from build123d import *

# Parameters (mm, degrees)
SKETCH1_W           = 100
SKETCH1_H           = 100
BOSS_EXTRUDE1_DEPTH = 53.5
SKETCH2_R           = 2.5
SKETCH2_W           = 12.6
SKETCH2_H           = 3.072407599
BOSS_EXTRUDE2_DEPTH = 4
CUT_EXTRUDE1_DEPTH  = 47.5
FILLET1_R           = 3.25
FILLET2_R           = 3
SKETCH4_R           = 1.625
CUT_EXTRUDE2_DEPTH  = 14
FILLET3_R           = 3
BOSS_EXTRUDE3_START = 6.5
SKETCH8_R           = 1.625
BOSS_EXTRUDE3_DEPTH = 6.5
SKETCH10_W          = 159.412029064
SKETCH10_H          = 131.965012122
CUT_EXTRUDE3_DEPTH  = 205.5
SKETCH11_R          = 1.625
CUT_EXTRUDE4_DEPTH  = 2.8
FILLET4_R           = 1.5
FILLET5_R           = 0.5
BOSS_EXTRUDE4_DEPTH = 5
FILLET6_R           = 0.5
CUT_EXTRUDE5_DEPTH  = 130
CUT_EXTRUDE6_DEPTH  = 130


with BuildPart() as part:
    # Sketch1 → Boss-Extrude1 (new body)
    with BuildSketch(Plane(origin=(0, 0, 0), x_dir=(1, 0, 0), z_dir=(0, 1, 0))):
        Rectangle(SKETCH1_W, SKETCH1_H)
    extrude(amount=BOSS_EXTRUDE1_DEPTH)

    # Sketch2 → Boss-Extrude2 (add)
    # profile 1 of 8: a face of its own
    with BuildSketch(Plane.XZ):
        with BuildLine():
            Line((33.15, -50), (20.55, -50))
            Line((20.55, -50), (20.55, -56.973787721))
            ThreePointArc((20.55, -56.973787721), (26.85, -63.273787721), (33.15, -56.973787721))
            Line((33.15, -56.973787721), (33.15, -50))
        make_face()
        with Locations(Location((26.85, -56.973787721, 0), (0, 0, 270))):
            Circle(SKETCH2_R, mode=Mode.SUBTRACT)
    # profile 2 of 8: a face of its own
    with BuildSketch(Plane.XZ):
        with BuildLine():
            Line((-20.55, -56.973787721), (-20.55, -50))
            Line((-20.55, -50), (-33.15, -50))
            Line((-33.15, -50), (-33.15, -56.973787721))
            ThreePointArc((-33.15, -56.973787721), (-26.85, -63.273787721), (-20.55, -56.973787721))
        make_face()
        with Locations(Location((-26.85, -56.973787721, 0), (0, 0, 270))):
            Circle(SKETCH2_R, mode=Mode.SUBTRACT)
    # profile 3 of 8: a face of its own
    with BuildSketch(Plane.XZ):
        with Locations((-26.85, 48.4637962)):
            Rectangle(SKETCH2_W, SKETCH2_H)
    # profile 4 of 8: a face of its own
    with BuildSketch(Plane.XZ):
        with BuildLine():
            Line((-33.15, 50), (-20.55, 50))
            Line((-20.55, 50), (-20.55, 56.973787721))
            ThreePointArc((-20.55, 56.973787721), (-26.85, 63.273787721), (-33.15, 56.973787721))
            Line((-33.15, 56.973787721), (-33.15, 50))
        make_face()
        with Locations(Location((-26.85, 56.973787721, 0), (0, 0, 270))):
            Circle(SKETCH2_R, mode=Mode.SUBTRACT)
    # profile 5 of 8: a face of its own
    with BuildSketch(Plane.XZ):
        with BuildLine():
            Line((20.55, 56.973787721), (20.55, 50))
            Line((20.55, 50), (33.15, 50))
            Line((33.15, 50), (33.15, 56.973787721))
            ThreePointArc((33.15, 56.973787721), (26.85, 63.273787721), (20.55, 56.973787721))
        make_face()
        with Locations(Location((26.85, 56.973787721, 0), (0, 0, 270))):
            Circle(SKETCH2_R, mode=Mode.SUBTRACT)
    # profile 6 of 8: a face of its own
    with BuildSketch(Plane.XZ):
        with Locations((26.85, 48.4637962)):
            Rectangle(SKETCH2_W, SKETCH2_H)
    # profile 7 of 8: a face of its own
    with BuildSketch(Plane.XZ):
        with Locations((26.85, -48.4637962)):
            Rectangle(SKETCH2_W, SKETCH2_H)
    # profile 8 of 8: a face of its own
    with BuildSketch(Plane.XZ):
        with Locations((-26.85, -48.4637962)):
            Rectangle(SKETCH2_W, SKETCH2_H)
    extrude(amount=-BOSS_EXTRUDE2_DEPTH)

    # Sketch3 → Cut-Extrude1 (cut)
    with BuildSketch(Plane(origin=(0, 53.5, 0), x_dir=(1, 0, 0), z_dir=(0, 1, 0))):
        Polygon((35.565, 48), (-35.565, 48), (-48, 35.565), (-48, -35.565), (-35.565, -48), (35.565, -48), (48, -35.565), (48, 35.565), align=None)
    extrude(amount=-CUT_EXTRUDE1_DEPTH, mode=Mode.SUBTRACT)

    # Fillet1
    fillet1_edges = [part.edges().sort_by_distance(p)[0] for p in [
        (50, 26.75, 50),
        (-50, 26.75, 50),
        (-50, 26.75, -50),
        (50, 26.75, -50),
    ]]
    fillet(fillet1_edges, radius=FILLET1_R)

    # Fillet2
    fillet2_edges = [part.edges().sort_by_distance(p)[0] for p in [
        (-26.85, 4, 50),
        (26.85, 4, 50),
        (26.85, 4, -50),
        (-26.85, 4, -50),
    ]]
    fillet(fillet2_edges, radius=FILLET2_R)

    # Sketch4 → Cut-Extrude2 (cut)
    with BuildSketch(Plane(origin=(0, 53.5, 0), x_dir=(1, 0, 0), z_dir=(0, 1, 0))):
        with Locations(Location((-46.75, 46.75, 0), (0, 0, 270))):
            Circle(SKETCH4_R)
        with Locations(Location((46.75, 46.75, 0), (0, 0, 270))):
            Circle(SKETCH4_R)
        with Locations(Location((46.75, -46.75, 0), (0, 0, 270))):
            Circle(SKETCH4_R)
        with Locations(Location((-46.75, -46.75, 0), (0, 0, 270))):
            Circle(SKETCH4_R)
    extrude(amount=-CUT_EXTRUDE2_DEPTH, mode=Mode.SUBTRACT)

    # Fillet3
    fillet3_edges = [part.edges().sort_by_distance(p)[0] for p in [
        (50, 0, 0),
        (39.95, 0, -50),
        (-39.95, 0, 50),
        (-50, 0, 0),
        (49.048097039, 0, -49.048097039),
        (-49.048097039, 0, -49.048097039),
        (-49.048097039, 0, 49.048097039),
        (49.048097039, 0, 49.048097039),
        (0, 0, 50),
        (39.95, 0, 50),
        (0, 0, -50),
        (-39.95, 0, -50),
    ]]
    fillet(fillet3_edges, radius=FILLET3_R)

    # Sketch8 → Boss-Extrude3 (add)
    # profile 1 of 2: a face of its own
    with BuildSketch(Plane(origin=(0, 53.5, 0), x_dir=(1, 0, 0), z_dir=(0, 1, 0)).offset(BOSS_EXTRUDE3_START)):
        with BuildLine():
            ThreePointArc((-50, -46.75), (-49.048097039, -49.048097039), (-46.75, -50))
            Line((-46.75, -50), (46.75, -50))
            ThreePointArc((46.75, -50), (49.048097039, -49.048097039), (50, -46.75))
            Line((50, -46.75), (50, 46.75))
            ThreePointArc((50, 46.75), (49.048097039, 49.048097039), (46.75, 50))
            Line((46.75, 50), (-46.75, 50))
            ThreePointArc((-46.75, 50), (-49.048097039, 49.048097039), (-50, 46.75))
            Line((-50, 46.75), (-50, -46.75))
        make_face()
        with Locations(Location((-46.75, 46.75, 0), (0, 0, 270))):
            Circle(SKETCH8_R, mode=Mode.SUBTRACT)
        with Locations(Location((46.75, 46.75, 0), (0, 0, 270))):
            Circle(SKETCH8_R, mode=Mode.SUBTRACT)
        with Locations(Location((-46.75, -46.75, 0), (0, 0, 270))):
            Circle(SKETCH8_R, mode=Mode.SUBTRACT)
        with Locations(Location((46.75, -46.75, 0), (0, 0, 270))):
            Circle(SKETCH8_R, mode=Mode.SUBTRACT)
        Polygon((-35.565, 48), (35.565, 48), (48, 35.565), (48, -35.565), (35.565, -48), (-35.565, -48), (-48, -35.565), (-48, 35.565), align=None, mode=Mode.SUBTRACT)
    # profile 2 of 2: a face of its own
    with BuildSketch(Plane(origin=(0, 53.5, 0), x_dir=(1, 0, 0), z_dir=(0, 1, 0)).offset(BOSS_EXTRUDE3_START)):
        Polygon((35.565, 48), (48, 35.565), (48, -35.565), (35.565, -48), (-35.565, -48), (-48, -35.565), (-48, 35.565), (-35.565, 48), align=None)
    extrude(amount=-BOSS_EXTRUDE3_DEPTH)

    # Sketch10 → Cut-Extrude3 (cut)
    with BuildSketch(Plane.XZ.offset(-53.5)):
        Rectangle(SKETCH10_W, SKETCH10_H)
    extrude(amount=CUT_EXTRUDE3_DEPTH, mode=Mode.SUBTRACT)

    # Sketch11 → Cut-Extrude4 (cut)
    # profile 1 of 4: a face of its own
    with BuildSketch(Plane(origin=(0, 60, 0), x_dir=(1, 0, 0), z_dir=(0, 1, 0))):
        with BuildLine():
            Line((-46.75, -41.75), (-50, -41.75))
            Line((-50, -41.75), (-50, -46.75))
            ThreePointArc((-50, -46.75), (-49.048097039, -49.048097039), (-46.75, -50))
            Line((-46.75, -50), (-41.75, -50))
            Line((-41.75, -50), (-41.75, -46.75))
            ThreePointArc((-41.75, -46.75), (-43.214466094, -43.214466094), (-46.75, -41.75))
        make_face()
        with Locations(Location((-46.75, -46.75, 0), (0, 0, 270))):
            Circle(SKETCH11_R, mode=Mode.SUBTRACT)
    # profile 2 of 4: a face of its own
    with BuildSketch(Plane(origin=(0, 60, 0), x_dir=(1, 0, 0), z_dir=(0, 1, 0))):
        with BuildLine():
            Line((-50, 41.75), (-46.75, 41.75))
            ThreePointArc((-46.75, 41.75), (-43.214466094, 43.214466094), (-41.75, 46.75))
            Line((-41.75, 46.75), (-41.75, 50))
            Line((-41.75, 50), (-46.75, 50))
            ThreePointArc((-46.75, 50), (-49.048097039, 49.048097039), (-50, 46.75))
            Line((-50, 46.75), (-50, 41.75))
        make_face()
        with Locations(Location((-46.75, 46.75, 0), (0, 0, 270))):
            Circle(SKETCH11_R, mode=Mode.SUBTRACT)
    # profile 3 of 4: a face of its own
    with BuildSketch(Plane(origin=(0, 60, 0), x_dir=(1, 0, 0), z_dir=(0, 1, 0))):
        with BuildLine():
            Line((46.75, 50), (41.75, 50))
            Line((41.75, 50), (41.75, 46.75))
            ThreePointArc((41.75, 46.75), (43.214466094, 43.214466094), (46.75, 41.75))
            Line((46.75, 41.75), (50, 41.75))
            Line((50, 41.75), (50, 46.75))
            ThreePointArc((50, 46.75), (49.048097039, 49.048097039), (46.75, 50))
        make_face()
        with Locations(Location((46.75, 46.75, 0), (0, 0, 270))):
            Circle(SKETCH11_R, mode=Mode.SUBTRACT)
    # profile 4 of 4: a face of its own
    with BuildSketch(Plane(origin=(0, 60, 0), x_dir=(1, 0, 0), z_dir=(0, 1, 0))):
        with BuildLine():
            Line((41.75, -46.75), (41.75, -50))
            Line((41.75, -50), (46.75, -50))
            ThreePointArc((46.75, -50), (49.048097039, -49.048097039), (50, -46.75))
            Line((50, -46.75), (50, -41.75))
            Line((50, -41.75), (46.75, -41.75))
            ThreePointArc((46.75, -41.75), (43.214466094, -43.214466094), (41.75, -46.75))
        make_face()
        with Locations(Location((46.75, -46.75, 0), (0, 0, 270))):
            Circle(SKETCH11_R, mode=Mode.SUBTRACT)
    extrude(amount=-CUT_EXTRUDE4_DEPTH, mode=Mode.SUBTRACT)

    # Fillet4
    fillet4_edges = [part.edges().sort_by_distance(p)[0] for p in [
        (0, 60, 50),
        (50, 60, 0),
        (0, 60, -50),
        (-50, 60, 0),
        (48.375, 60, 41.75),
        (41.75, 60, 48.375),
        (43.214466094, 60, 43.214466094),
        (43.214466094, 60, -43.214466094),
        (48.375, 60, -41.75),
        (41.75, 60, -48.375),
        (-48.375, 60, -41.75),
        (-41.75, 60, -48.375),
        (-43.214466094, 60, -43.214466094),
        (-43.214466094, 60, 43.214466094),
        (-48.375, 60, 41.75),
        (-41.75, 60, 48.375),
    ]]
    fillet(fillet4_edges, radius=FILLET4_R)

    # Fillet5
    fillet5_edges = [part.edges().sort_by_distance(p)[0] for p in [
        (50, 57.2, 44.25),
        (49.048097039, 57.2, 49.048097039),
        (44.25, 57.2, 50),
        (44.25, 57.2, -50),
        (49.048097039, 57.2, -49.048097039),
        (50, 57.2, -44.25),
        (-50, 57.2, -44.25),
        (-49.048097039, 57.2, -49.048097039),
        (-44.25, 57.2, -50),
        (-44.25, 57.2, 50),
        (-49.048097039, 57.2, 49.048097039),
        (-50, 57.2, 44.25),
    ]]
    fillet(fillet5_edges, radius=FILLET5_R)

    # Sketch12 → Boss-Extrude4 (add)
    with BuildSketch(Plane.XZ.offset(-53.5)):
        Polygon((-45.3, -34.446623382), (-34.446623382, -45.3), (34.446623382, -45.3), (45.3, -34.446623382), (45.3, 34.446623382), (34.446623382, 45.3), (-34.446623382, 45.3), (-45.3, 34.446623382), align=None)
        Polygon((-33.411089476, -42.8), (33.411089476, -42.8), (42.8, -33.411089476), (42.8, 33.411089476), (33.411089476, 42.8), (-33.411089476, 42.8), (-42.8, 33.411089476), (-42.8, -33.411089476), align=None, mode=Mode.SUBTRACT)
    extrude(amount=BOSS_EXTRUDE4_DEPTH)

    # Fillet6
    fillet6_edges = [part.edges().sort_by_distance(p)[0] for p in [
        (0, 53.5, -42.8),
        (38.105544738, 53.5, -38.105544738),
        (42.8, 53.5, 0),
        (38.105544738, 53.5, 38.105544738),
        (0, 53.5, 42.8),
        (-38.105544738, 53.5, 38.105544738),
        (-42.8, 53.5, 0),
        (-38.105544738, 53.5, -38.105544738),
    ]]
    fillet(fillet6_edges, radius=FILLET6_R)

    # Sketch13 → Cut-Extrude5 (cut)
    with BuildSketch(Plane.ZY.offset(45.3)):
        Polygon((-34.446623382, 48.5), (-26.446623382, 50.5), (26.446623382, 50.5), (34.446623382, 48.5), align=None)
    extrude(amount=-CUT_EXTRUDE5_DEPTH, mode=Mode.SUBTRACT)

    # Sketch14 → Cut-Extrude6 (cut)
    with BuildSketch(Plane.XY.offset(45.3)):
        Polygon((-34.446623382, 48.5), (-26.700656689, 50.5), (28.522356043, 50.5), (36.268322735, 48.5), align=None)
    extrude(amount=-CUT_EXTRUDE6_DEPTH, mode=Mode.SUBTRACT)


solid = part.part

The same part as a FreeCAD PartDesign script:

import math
import FreeCAD as App
import Part
import Sketcher

V = App.Vector


def edges_at(feature, points):
    """Names of the edges that pass closest to the given points."""
    edges = feature.Shape.Edges
    near = lambda p: min(range(len(edges)), key=lambda i: edges[i].distToShape(Part.Vertex(*p))[0])
    return sorted({f"Edge{near(p) + 1}" for p in points})


def add_polygon(sketch, points):
    """Adds a closed chain of lines whose ends are joined by coincident constraints."""
    first, n = sketch.GeometryCount, len(points)
    for a, b in zip(points, points[1:] + points[:1]):
        sketch.addGeometry(Part.LineSegment(App.Vector(*a, 0), App.Vector(*b, 0)), False)
    for i in range(n):
        sketch.addConstraint(Sketcher.Constraint("Coincident", first + i, 2, first + (i + 1) % n, 1))

doc = App.newDocument("Part")
body = doc.addObject("PartDesign::Body", "Body")

sketch1 = body.newObject("Sketcher::SketchObject", "Sketch")
sketch1.AttachmentSupport = (doc.getObject("XZ_Plane"), [""])
sketch1.MapMode = "FlatFace"
add_polygon(sketch1, [(-50, -50), (-50, 50), (50, 50), (50, -50)])
sketch1.addConstraint([
    Sketcher.Constraint("Vertical", 0),
    Sketcher.Constraint("Horizontal", 1),
    Sketcher.Constraint("Vertical", 2),
    Sketcher.Constraint("Horizontal", 3),
    Sketcher.Constraint("Symmetric", 0, 2, 2, 2, -1, 1),
    Sketcher.Constraint("Equal", 3, 0),
    Sketcher.Constraint("DistanceX", 1, 1, 1, 2, 100.0),
])
pad1 = body.newObject("PartDesign::Pad", "Pad")
pad1.Profile = sketch1
pad1.Length = 53.5
pad1.Reversed = True

sketch2 = body.newObject("Sketcher::SketchObject", "Sketch001")
sketch2.AttachmentSupport = (doc.getObject("XZ_Plane"), [""])
sketch2.MapMode = "FlatFace"
sketch2.addGeometry([
    Part.LineSegment(V(33.1, -57, 0), V(33.1, -46.9, 0)),
    Part.LineSegment(V(33.1, -46.9, 0), V(20.6, -46.9, 0)),
    Part.LineSegment(V(20.6, -46.9, 0), V(20.6, -57, 0)),
    Part.ArcOfCircle(Part.Circle(V(26.9, -57, 0), V(0, 0, 1), 6.3), math.radians(180), math.radians(360)),
    Part.Circle(V(26.9, -57, 0), V(0, 0, 1), 2.5),
    Part.LineSegment(V(-20.6, -57, 0), V(-20.6, -46.9, 0)),
    Part.LineSegment(V(-20.6, -46.9, 0), V(-33.1, -46.9, 0)),
    Part.LineSegment(V(-33.1, -46.9, 0), V(-33.1, -57, 0)),
    Part.ArcOfCircle(Part.Circle(V(-26.9, -57, 0), V(0, 0, 1), 6.3), math.radians(180), math.radians(360)),
    Part.Circle(V(-26.9, -57, 0), V(0, 0, 1), 2.5),
    Part.LineSegment(V(-33.1, 46.9, 0), V(-20.6, 46.9, 0)),
    Part.LineSegment(V(-20.6, 46.9, 0), V(-20.6, 57, 0)),
    Part.ArcOfCircle(Part.Circle(V(-26.9, 57, 0), V(0, 0, 1), 6.3), math.radians(0), math.radians(180)),
    Part.LineSegment(V(-33.1, 57, 0), V(-33.1, 46.9, 0)),
    Part.Circle(V(-26.9, 57, 0), V(0, 0, 1), 2.5),
    Part.LineSegment(V(20.6, 57, 0), V(20.6, 46.9, 0)),
    Part.LineSegment(V(20.6, 46.9, 0), V(33.1, 46.9, 0)),
    Part.LineSegment(V(33.1, 46.9, 0), V(33.1, 57, 0)),
    Part.ArcOfCircle(Part.Circle(V(26.9, 57, 0), V(0, 0, 1), 6.3), math.radians(0), math.radians(180)),
    Part.Circle(V(26.9, 57, 0), V(0, 0, 1), 2.5),
], False)
sketch2.addConstraint([
    Sketcher.Constraint("Coincident", 0, 2, 1, 1),
    Sketcher.Constraint("Coincident", 1, 2, 2, 1),
    Sketcher.Constraint("Tangent", 2, 2, 3, 1),
    Sketcher.Constraint("Tangent", 3, 2, 0, 1),
    Sketcher.Constraint("Coincident", 5, 2, 6, 1),
    Sketcher.Constraint("Coincident", 6, 2, 7, 1),
    Sketcher.Constraint("Tangent", 7, 2, 8, 1),
    Sketcher.Constraint("Tangent", 8, 2, 5, 1),
    Sketcher.Constraint("Coincident", 10, 2, 11, 1),
    Sketcher.Constraint("Tangent", 11, 2, 12, 1),
    Sketcher.Constraint("Tangent", 12, 2, 13, 1),
    Sketcher.Constraint("Coincident", 13, 2, 10, 1),
    Sketcher.Constraint("Coincident", 15, 2, 16, 1),
    Sketcher.Constraint("Coincident", 16, 2, 17, 1),
    Sketcher.Constraint("Tangent", 17, 2, 18, 1),
    Sketcher.Constraint("Tangent", 18, 2, 15, 1),
    Sketcher.Constraint("Vertical", 0),
    Sketcher.Constraint("Horizontal", 1),
    Sketcher.Constraint("Vertical", 2),
    Sketcher.Constraint("Vertical", 5),
    Sketcher.Constraint("Horizontal", 6),
    Sketcher.Constraint("Vertical", 7),
    Sketcher.Constraint("Horizontal", 10),
    Sketcher.Constraint("Vertical", 11),
    Sketcher.Constraint("Vertical", 13),
    Sketcher.Constraint("Vertical", 15),
    Sketcher.Constraint("Horizontal", 16),
    Sketcher.Constraint("Vertical", 17),
    Sketcher.Constraint("Coincident", 4, 3, 3, 3),
    Sketcher.Constraint("Coincident", 9, 3, 8, 3),
    Sketcher.Constraint("Coincident", 14, 3, 12, 3),
    Sketcher.Constraint("Coincident", 19, 3, 18, 3),
    Sketcher.Constraint("Equal", 3, 8),
    Sketcher.Constraint("Equal", 4, 9),
    Sketcher.Constraint("Equal", 8, 12),
    Sketcher.Constraint("Equal", 9, 14),
    Sketcher.Constraint("Equal", 12, 18),
    Sketcher.Constraint("Equal", 14, 19),
    Sketcher.Constraint("Symmetric", 3, 3, 12, 3, -1, 1),
    Sketcher.Constraint("Symmetric", 8, 3, 18, 3, -1, 1),
    Sketcher.Constraint("Symmetric", 3, 3, 8, 3, -2),
    Sketcher.Constraint("Horizontal", 1, 2, 5, 2),
    Sketcher.Constraint("Horizontal", 13, 2, 15, 2),
    Sketcher.Constraint("Equal", 7, 11),
    Sketcher.Constraint("Diameter", 4, 5.0),
    Sketcher.Constraint("Radius", 3, 6.3),
    Sketcher.Constraint("DistanceX", 8, 3, 0, 2, 60.0),
    Sketcher.Constraint("DistanceY", 0, 1, 0, 2, 10.046195),
    Sketcher.Constraint("DistanceY", 0, 2, 18, 3, 103.90138),
])
pad2 = body.newObject("PartDesign::Pad", "Pad001")
pad2.Profile = sketch2
pad2.Length = 4
pad2.Reversed = True

sketch3 = body.newObject("Sketcher::SketchObject", "Sketch002")
sketch3.AttachmentSupport = (doc.getObject("XZ_Plane"), [""])
sketch3.MapMode = "FlatFace"
sketch3.AttachmentOffset = App.Placement(V(0, 0, -53.5), App.Rotation())
add_polygon(sketch3, [(36, -48), (-36, -48), (-48, -36), (-48, 36), (-36, 48), (36, 48), (48, 36), (48, -36)])
sketch3.addConstraint([
    Sketcher.Constraint("Horizontal", 0),
    Sketcher.Constraint("Vertical", 2),
    Sketcher.Constraint("Horizontal", 4),
    Sketcher.Constraint("Vertical", 6),
    Sketcher.Constraint("Symmetric", 0, 2, 4, 2, -1, 1),
    Sketcher.Constraint("Symmetric", 1, 2, 5, 2, -1, 1),
    Sketcher.Constraint("Perpendicular", 1, 3),
    Sketcher.Constraint("Perpendicular", 5, 7),
    Sketcher.Constraint("Horizontal", 2, 2, 5, 2),
    Sketcher.Constraint("Horizontal", 1, 2, 6, 2),
    Sketcher.Constraint("Vertical", 0, 2, 3, 2),
    Sketcher.Constraint("Equal", 4, 2),
    Sketcher.Constraint("DistanceY", 0, 2, -1, 1, 48.0),
    Sketcher.Constraint("DistanceX", 0, 2, 0, 1, 71.13),
])
pocket1 = body.newObject("PartDesign::Pocket", "Pocket")
pocket1.Profile = sketch3
pocket1.Length = 47.5
pocket1.Reversed = True
doc.recompute()

fillet = body.newObject("PartDesign::Fillet", "Fillet")
fillet.Base = (pocket1, edges_at(pocket1, [
    (50, 26.75, 50),
    (-50, 26.75, 50),
    (-50, 26.75, -50),
    (50, 26.75, -50),
]))
fillet.Radius = 3.25
doc.recompute()

fillet2 = body.newObject("PartDesign::Fillet", "Fillet001")
fillet2.Base = (fillet, edges_at(fillet, [
    (-26.85, 4, 50),
    (26.85, 4, 50),
    (26.85, 4, -50),
    (-26.85, 4, -50),
]))
fillet2.Radius = 3

sketch4 = body.newObject("Sketcher::SketchObject", "Sketch003")
sketch4.AttachmentSupport = (doc.getObject("XZ_Plane"), [""])
sketch4.MapMode = "FlatFace"
sketch4.AttachmentOffset = App.Placement(V(0, 0, -53.5), App.Rotation())
sketch4.addGeometry([
    Part.Circle(V(-46.8, -46.8, 0), V(0, 0, 1), 1.6),
    Part.Circle(V(46.8, -46.8, 0), V(0, 0, 1), 1.6),
    Part.Circle(V(46.8, 46.8, 0), V(0, 0, 1), 1.6),
    Part.Circle(V(-46.8, 46.8, 0), V(0, 0, 1), 1.6),
], False)
sketch4.addConstraint([
    Sketcher.Constraint("Equal", 0, 1),
    Sketcher.Constraint("Equal", 1, 2),
    Sketcher.Constraint("Equal", 2, 3),
    Sketcher.Constraint("Symmetric", 0, 3, 2, 3, -1, 1),
    Sketcher.Constraint("Symmetric", 1, 3, 3, 3, -1, 1),
    Sketcher.Constraint("Symmetric", 0, 3, 1, 3, -2),
    Sketcher.Constraint("Diameter", 0, 3.25),
    Sketcher.Constraint("DistanceX", 0, 3, 1, 3, 93.5),
    Sketcher.Constraint("DistanceY", 1, 3, 2, 3, 93.5),
])
pocket2 = body.newObject("PartDesign::Pocket", "Pocket001")
pocket2.Profile = sketch4
pocket2.Length = 14
pocket2.Reversed = True
doc.recompute()

fillet3 = body.newObject("PartDesign::Fillet", "Fillet002")
fillet3.Base = (pocket2, edges_at(pocket2, [
    (50, 0, 0),
    (39.95, 0, -50),
    (-39.95, 0, 50),
    (-50, 0, 0),
    (49.048, 0, -49.048),
    (-49.048, 0, -49.048),
    (-49.048, 0, 49.048),
    (49.048, 0, 49.048),
    (0, 0, 50),
    (39.95, 0, 50),
    (0, 0, -50),
    (-39.95, 0, -50),
]))
fillet3.Radius = 3

sketch5 = body.newObject("Sketcher::SketchObject", "Sketch004")
sketch5.AttachmentSupport = (doc.getObject("XZ_Plane"), [""])
sketch5.MapMode = "FlatFace"
sketch5.AttachmentOffset = App.Placement(V(0, 0, -60), App.Rotation())
sketch5.addGeometry([
    Part.ArcOfCircle(Part.Circle(V(-46.8, 46.8, 0), V(0, 0, 1), 3.2), math.radians(90), math.radians(180)),
    Part.LineSegment(V(-46.8, 50, 0), V(46.8, 50, 0)),
    Part.ArcOfCircle(Part.Circle(V(46.8, 46.8, 0), V(0, 0, 1), 3.2), math.radians(0), math.radians(90)),
    Part.LineSegment(V(50, 46.8, 0), V(50, -46.8, 0)),
    Part.ArcOfCircle(Part.Circle(V(46.8, -46.8, 0), V(0, 0, 1), 3.2), math.radians(-90), math.radians(0)),
    Part.LineSegment(V(46.8, -50, 0), V(-46.8, -50, 0)),
    Part.ArcOfCircle(Part.Circle(V(-46.8, -46.8, 0), V(0, 0, 1), 3.2), math.radians(180), math.radians(270)),
    Part.LineSegment(V(-50, -46.8, 0), V(-50, 46.8, 0)),
    Part.Circle(V(-46.8, 46.8, 0), V(0, 0, 1), 1.6),
    Part.Circle(V(46.8, 46.8, 0), V(0, 0, 1), 1.6),
    Part.Circle(V(-46.8, -46.8, 0), V(0, 0, 1), 1.6),
    Part.Circle(V(46.8, -46.8, 0), V(0, 0, 1), 1.6),
], False)
sketch5.addConstraint([
    Sketcher.Constraint("Tangent", 0, 1, 1, 1),
    Sketcher.Constraint("Tangent", 1, 2, 2, 2),
    Sketcher.Constraint("Tangent", 2, 1, 3, 1),
    Sketcher.Constraint("Tangent", 3, 2, 4, 2),
    Sketcher.Constraint("Tangent", 4, 1, 5, 1),
    Sketcher.Constraint("Tangent", 5, 2, 6, 2),
    Sketcher.Constraint("Tangent", 6, 1, 7, 1),
    Sketcher.Constraint("Tangent", 7, 2, 0, 2),
    Sketcher.Constraint("Horizontal", 1),
    Sketcher.Constraint("Vertical", 3),
    Sketcher.Constraint("Horizontal", 5),
    Sketcher.Constraint("Vertical", 7),
    Sketcher.Constraint("Coincident", 8, 3, 0, 3),
    Sketcher.Constraint("Coincident", 9, 3, 2, 3),
    Sketcher.Constraint("Coincident", 10, 3, 6, 3),
    Sketcher.Constraint("Coincident", 11, 3, 4, 3),
    Sketcher.Constraint("Equal", 0, 2),
    Sketcher.Constraint("Equal", 2, 4),
    Sketcher.Constraint("Equal", 4, 6),
    Sketcher.Constraint("Equal", 8, 9),
    Sketcher.Constraint("Equal", 9, 10),
    Sketcher.Constraint("Equal", 10, 11),
    Sketcher.Constraint("Symmetric", 0, 3, 4, 3, -1, 1),
    Sketcher.Constraint("Equal", 5, 3),
    Sketcher.Constraint("Diameter", 8, 3.25),
    Sketcher.Constraint("Radius", 0, 3.25),
    Sketcher.Constraint("DistanceX", 1, 1, 1, 2, 93.5),
])
pad3 = body.newObject("PartDesign::Pad", "Pad002")
pad3.Profile = sketch5
pad3.Length = 6.5

sketch6 = body.newObject("Sketcher::SketchObject", "Sketch005")
sketch6.AttachmentSupport = (doc.getObject("XZ_Plane"), [""])
sketch6.MapMode = "FlatFace"
sketch6.AttachmentOffset = App.Placement(V(0, 0, -53.5), App.Rotation())
add_polygon(sketch6, [(-80, 66), (-80, -66), (80, -66), (80, 66)])
sketch6.addConstraint([
    Sketcher.Constraint("Vertical", 0),
    Sketcher.Constraint("Horizontal", 1),
    Sketcher.Constraint("Vertical", 2),
    Sketcher.Constraint("Horizontal", 3),
    Sketcher.Constraint("Symmetric", 0, 2, 2, 2, -1, 1),
    Sketcher.Constraint("DistanceX", 1, 1, 1, 2, 159.412029),
    Sketcher.Constraint("DistanceY", 0, 2, 0, 1, 131.965012),
])
pocket3 = body.newObject("PartDesign::Pocket", "Pocket002")
pocket3.Profile = sketch6
pocket3.Length = 205.5
pocket3.Reversed = True

sketch7 = body.newObject("Sketcher::SketchObject", "Sketch006")
sketch7.AttachmentSupport = (doc.getObject("XZ_Plane"), [""])
sketch7.MapMode = "FlatFace"
sketch7.AttachmentOffset = App.Placement(V(0, 0, -60), App.Rotation())
sketch7.addGeometry([
    Part.LineSegment(V(-46.8, 41.8, 0), V(-50, 41.8, 0)),
    Part.LineSegment(V(-50, 41.8, 0), V(-50, 46.8, 0)),
    Part.ArcOfCircle(Part.Circle(V(-46.8, 46.8, 0), V(0, 0, 1), 3.2), math.radians(90), math.radians(180)),
    Part.LineSegment(V(-46.8, 50, 0), V(-41.8, 50, 0)),
    Part.LineSegment(V(-41.8, 50, 0), V(-41.8, 46.8, 0)),
    Part.ArcOfCircle(Part.Circle(V(-46.8, 46.8, 0), V(0, 0, 1), 5), math.radians(-90), math.radians(0)),
    Part.Circle(V(-46.8, 46.8, 0), V(0, 0, 1), 1.6),
    Part.LineSegment(V(-50, -41.8, 0), V(-46.8, -41.8, 0)),
    Part.ArcOfCircle(Part.Circle(V(-46.8, -46.8, 0), V(0, 0, 1), 5), math.radians(0), math.radians(90)),
    Part.LineSegment(V(-41.8, -46.8, 0), V(-41.8, -50, 0)),
    Part.LineSegment(V(-41.8, -50, 0), V(-46.8, -50, 0)),
    Part.ArcOfCircle(Part.Circle(V(-46.8, -46.8, 0), V(0, 0, 1), 3.2), math.radians(180), math.radians(270)),
    Part.LineSegment(V(-50, -46.8, 0), V(-50, -41.8, 0)),
    Part.Circle(V(-46.8, -46.8, 0), V(0, 0, 1), 1.6),
    Part.LineSegment(V(46.8, -50, 0), V(41.8, -50, 0)),
    Part.LineSegment(V(41.8, -50, 0), V(41.8, -46.8, 0)),
    Part.ArcOfCircle(Part.Circle(V(46.8, -46.8, 0), V(0, 0, 1), 5), math.radians(90), math.radians(180)),
    Part.LineSegment(V(46.8, -41.8, 0), V(50, -41.8, 0)),
    Part.LineSegment(V(50, -41.8, 0), V(50, -46.8, 0)),
    Part.ArcOfCircle(Part.Circle(V(46.8, -46.8, 0), V(0, 0, 1), 3.2), math.radians(-90), math.radians(0)),
    Part.Circle(V(46.8, -46.8, 0), V(0, 0, 1), 1.6),
    Part.LineSegment(V(41.8, 46.8, 0), V(41.8, 50, 0)),
    Part.LineSegment(V(41.8, 50, 0), V(46.8, 50, 0)),
    Part.ArcOfCircle(Part.Circle(V(46.8, 46.8, 0), V(0, 0, 1), 3.2), math.radians(0), math.radians(90)),
    Part.LineSegment(V(50, 46.8, 0), V(50, 41.8, 0)),
    Part.LineSegment(V(50, 41.8, 0), V(46.8, 41.8, 0)),
    Part.ArcOfCircle(Part.Circle(V(46.8, 46.8, 0), V(0, 0, 1), 5), math.radians(180), math.radians(270)),
    Part.Circle(V(46.8, 46.8, 0), V(0, 0, 1), 1.6),
], False)
sketch7.addConstraint([
    Sketcher.Constraint("Coincident", 0, 2, 1, 1),
    Sketcher.Constraint("Tangent", 1, 2, 2, 2),
    Sketcher.Constraint("Tangent", 2, 1, 3, 1),
    Sketcher.Constraint("Coincident", 3, 2, 4, 1),
    Sketcher.Constraint("Tangent", 4, 2, 5, 2),
    Sketcher.Constraint("Tangent", 5, 1, 0, 1),
    Sketcher.Constraint("Tangent", 7, 2, 8, 2),
    Sketcher.Constraint("Tangent", 8, 1, 9, 1),
    Sketcher.Constraint("Coincident", 9, 2, 10, 1),
    Sketcher.Constraint("Tangent", 10, 2, 11, 2),
    Sketcher.Constraint("Tangent", 11, 1, 12, 1),
    Sketcher.Constraint("Coincident", 12, 2, 7, 1),
    Sketcher.Constraint("Coincident", 14, 2, 15, 1),
    Sketcher.Constraint("Tangent", 15, 2, 16, 2),
    Sketcher.Constraint("Tangent", 16, 1, 17, 1),
    Sketcher.Constraint("Coincident", 17, 2, 18, 1),
    Sketcher.Constraint("Tangent", 18, 2, 19, 2),
    Sketcher.Constraint("Tangent", 19, 1, 14, 1),
    Sketcher.Constraint("Coincident", 21, 2, 22, 1),
    Sketcher.Constraint("Tangent", 22, 2, 23, 2),
    Sketcher.Constraint("Tangent", 23, 1, 24, 1),
    Sketcher.Constraint("Coincident", 24, 2, 25, 1),
    Sketcher.Constraint("Tangent", 25, 2, 26, 2),
    Sketcher.Constraint("Tangent", 26, 1, 21, 1),
    Sketcher.Constraint("Horizontal", 0),
    Sketcher.Constraint("Vertical", 1),
    Sketcher.Constraint("Horizontal", 3),
    Sketcher.Constraint("Vertical", 4),
    Sketcher.Constraint("Horizontal", 7),
    Sketcher.Constraint("Vertical", 9),
    Sketcher.Constraint("Horizontal", 10),
    Sketcher.Constraint("Vertical", 12),
    Sketcher.Constraint("Horizontal", 14),
    Sketcher.Constraint("Vertical", 15),
    Sketcher.Constraint("Horizontal", 17),
    Sketcher.Constraint("Vertical", 18),
    Sketcher.Constraint("Vertical", 21),
    Sketcher.Constraint("Horizontal", 22),
    Sketcher.Constraint("Vertical", 24),
    Sketcher.Constraint("Horizontal", 25),
    Sketcher.Constraint("Coincident", 5, 3, 2, 3),
    Sketcher.Constraint("Coincident", 6, 3, 2, 3),
    Sketcher.Constraint("Coincident", 11, 3, 8, 3),
    Sketcher.Constraint("Coincident", 13, 3, 8, 3),
    Sketcher.Constraint("Coincident", 19, 3, 16, 3),
    Sketcher.Constraint("Coincident", 20, 3, 16, 3),
    Sketcher.Constraint("Coincident", 26, 3, 23, 3),
    Sketcher.Constraint("Coincident", 27, 3, 23, 3),
    Sketcher.Constraint("Equal", 5, 8),
    Sketcher.Constraint("Equal", 2, 11),
    Sketcher.Constraint("Equal", 6, 13),
    Sketcher.Constraint("Equal", 8, 16),
    Sketcher.Constraint("Equal", 11, 19),
    Sketcher.Constraint("Equal", 13, 20),
    Sketcher.Constraint("Equal", 19, 23),
    Sketcher.Constraint("Equal", 16, 26),
    Sketcher.Constraint("Equal", 20, 27),
    Sketcher.Constraint("Symmetric", 2, 3, 16, 3, -1, 1),
    Sketcher.Constraint("Symmetric", 8, 3, 23, 3, -1, 1),
    Sketcher.Constraint("Symmetric", 8, 3, 16, 3, -2),
    Sketcher.Constraint("Radius", 5, 5.0),
    Sketcher.Constraint("Diameter", 6, 3.25),
    Sketcher.Constraint("Radius", 2, 3.25),
    Sketcher.Constraint("DistanceX", 0, 2, -1, 1, 50.0),
    Sketcher.Constraint("DistanceY", -1, 1, 2, 1, 50.0),
])
pocket4 = body.newObject("PartDesign::Pocket", "Pocket003")
pocket4.Profile = sketch7
pocket4.Length = 2.8
pocket4.Reversed = True
doc.recompute()

fillet4 = body.newObject("PartDesign::Fillet", "Fillet003")
fillet4.Base = (pocket4, edges_at(pocket4, [
    (0, 60, 50),
    (50, 60, 0),
    (0, 60, -50),
    (-50, 60, 0),
    (48.375, 60, 41.75),
    (41.75, 60, 48.375),
    (43.214, 60, 43.214),
    (43.214, 60, -43.214),
    (48.375, 60, -41.75),
    (41.75, 60, -48.375),
    (-48.375, 60, -41.75),
    (-41.75, 60, -48.375),
    (-43.214, 60, -43.214),
    (-43.214, 60, 43.214),
    (-48.375, 60, 41.75),
    (-41.75, 60, 48.375),
]))
fillet4.Radius = 1.5
doc.recompute()

fillet5 = body.newObject("PartDesign::Fillet", "Fillet004")
fillet5.Base = (fillet4, edges_at(fillet4, [
    (50, 57.2, 44.25),
    (49.048, 57.2, 49.048),
    (44.25, 57.2, 50),
    (44.25, 57.2, -50),
    (49.048, 57.2, -49.048),
    (50, 57.2, -44.25),
    (-50, 57.2, -44.25),
    (-49.048, 57.2, -49.048),
    (-44.25, 57.2, -50),
    (-44.25, 57.2, 50),
    (-49.048, 57.2, 49.048),
    (-50, 57.2, 44.25),
]))
fillet5.Radius = 0.5

sketch8 = body.newObject("Sketcher::SketchObject", "Sketch007")
sketch8.AttachmentSupport = (doc.getObject("XZ_Plane"), [""])
sketch8.MapMode = "FlatFace"
sketch8.AttachmentOffset = App.Placement(V(0, 0, -53.5), App.Rotation())
add_polygon(sketch8, [(-45, -34), (-34, -45), (34, -45), (45, -34), (45, 34), (34, 45), (-34, 45), (-45, 34)])
add_polygon(sketch8, [(33, -43), (-33, -43), (-43, -33), (-43, 33), (-33, 43), (33, 43), (43, 33), (43, -33)])
sketch8.addConstraint([
    Sketcher.Constraint("Horizontal", 1),
    Sketcher.Constraint("Vertical", 3),
    Sketcher.Constraint("Horizontal", 5),
    Sketcher.Constraint("Vertical", 7),
    Sketcher.Constraint("Horizontal", 8),
    Sketcher.Constraint("Vertical", 10),
    Sketcher.Constraint("Horizontal", 12),
    Sketcher.Constraint("Vertical", 14),
    Sketcher.Constraint("Symmetric", 0, 2, 4, 2, -1, 1),
    Sketcher.Constraint("Symmetric", 2, 2, 6, 2, -1, 1),
    Sketcher.Constraint("Symmetric", 8, 2, 12, 2, -1, 1),
    Sketcher.Constraint("Symmetric", 9, 2, 13, 2, -1, 1),
    Sketcher.Constraint("Perpendicular", 0, 2),
    Sketcher.Constraint("Perpendicular", 2, 4),
    Sketcher.Constraint("Perpendicular", 4, 6),
    Sketcher.Constraint("Perpendicular", 6, 9),
    Sketcher.Constraint("Perpendicular", 9, 11),
    Sketcher.Constraint("Perpendicular", 13, 15),
    Sketcher.Constraint("Horizontal", 3, 2, 6, 2),
    Sketcher.Constraint("Horizontal", 10, 2, 13, 2),
    Sketcher.Constraint("Horizontal", 9, 2, 14, 2),
    Sketcher.Constraint("Vertical", 1, 2, 4, 2),
    Sketcher.Constraint("Equal", 5, 3),
    Sketcher.Constraint("Equal", 12, 10),
    Sketcher.Constraint("DistanceY", 0, 2, -1, 1, 45.3),
    Sketcher.Constraint("DistanceY", 8, 2, -1, 1, 42.8),
    Sketcher.Constraint("DistanceX", 8, 2, 8, 1, 66.822179),
    Sketcher.Constraint("DistanceX", 1, 1, 1, 2, 68.893247),
])
pad4 = body.newObject("PartDesign::Pad", "Pad003")
pad4.Profile = sketch8
pad4.Length = 5
doc.recompute()

fillet6 = body.newObject("PartDesign::Fillet", "Fillet005")
fillet6.Base = (pad4, edges_at(pad4, [
    (0, 53.5, -42.8),
    (38.106, 53.5, -38.106),
    (42.8, 53.5, 0),
    (38.106, 53.5, 38.106),
    (0, 53.5, 42.8),
    (-38.106, 53.5, 38.106),
    (-42.8, 53.5, 0),
    (-38.106, 53.5, -38.106),
]))
fillet6.Radius = 0.5

sketch9 = body.newObject("Sketcher::SketchObject", "Sketch008")
sketch9.AttachmentSupport = (doc.getObject("YZ_Plane"), [""])
sketch9.MapMode = "FlatFace"
sketch9.AttachmentOffset = App.Placement(V(0, 0, -45.3), App.Rotation())
add_polygon(sketch9, [(50, -26), (48, -34), (48, 34), (50, 26)])
sketch9.addConstraint([
    Sketcher.Constraint("Vertical", 1),
    Sketcher.Constraint("Vertical", 3),
    Sketcher.Constraint("Equal", 0, 2),
    Sketcher.Constraint("DistanceX", 1, 2, 2, 2, 2.0),
    Sketcher.Constraint("DistanceY", 2, 2, 1, 2, 8.0),
    Sketcher.Constraint("DistanceX", -1, 1, 0, 2, 48.5),
    Sketcher.Constraint("DistanceY", 1, 1, 1, 2, 68.893247),
    Sketcher.Constraint("DistanceY", 0, 2, -1, 1, 34.446623),
])
pocket5 = body.newObject("PartDesign::Pocket", "Pocket004")
pocket5.Profile = sketch9
pocket5.Length = 130
pocket5.Reversed = True

sketch10 = body.newObject("Sketcher::SketchObject", "Sketch009")
sketch10.AttachmentSupport = (doc.getObject("XY_Plane"), [""])
sketch10.MapMode = "FlatFace"
sketch10.AttachmentOffset = App.Placement(V(0, 0, 45.3), App.Rotation())
add_polygon(sketch10, [(-27, 50), (-34, 48), (36, 48), (29, 50)])
sketch10.addConstraint([
    Sketcher.Constraint("Horizontal", 1),
    Sketcher.Constraint("Horizontal", 3),
    Sketcher.Constraint("Equal", 0, 2),
    Sketcher.Constraint("Distance", 0, 8.0),
    Sketcher.Constraint("DistanceY", 1, 2, 2, 2, 2.0),
    Sketcher.Constraint("DistanceY", -1, 1, 0, 2, 48.5),
    Sketcher.Constraint("DistanceX", 1, 1, 1, 2, 70.714946),
    Sketcher.Constraint("DistanceX", 0, 2, -1, 1, 34.446623),
])
pocket6 = body.newObject("PartDesign::Pocket", "Pocket005")
pocket6.Profile = sketch10
pocket6.Length = 130

doc.recompute()
